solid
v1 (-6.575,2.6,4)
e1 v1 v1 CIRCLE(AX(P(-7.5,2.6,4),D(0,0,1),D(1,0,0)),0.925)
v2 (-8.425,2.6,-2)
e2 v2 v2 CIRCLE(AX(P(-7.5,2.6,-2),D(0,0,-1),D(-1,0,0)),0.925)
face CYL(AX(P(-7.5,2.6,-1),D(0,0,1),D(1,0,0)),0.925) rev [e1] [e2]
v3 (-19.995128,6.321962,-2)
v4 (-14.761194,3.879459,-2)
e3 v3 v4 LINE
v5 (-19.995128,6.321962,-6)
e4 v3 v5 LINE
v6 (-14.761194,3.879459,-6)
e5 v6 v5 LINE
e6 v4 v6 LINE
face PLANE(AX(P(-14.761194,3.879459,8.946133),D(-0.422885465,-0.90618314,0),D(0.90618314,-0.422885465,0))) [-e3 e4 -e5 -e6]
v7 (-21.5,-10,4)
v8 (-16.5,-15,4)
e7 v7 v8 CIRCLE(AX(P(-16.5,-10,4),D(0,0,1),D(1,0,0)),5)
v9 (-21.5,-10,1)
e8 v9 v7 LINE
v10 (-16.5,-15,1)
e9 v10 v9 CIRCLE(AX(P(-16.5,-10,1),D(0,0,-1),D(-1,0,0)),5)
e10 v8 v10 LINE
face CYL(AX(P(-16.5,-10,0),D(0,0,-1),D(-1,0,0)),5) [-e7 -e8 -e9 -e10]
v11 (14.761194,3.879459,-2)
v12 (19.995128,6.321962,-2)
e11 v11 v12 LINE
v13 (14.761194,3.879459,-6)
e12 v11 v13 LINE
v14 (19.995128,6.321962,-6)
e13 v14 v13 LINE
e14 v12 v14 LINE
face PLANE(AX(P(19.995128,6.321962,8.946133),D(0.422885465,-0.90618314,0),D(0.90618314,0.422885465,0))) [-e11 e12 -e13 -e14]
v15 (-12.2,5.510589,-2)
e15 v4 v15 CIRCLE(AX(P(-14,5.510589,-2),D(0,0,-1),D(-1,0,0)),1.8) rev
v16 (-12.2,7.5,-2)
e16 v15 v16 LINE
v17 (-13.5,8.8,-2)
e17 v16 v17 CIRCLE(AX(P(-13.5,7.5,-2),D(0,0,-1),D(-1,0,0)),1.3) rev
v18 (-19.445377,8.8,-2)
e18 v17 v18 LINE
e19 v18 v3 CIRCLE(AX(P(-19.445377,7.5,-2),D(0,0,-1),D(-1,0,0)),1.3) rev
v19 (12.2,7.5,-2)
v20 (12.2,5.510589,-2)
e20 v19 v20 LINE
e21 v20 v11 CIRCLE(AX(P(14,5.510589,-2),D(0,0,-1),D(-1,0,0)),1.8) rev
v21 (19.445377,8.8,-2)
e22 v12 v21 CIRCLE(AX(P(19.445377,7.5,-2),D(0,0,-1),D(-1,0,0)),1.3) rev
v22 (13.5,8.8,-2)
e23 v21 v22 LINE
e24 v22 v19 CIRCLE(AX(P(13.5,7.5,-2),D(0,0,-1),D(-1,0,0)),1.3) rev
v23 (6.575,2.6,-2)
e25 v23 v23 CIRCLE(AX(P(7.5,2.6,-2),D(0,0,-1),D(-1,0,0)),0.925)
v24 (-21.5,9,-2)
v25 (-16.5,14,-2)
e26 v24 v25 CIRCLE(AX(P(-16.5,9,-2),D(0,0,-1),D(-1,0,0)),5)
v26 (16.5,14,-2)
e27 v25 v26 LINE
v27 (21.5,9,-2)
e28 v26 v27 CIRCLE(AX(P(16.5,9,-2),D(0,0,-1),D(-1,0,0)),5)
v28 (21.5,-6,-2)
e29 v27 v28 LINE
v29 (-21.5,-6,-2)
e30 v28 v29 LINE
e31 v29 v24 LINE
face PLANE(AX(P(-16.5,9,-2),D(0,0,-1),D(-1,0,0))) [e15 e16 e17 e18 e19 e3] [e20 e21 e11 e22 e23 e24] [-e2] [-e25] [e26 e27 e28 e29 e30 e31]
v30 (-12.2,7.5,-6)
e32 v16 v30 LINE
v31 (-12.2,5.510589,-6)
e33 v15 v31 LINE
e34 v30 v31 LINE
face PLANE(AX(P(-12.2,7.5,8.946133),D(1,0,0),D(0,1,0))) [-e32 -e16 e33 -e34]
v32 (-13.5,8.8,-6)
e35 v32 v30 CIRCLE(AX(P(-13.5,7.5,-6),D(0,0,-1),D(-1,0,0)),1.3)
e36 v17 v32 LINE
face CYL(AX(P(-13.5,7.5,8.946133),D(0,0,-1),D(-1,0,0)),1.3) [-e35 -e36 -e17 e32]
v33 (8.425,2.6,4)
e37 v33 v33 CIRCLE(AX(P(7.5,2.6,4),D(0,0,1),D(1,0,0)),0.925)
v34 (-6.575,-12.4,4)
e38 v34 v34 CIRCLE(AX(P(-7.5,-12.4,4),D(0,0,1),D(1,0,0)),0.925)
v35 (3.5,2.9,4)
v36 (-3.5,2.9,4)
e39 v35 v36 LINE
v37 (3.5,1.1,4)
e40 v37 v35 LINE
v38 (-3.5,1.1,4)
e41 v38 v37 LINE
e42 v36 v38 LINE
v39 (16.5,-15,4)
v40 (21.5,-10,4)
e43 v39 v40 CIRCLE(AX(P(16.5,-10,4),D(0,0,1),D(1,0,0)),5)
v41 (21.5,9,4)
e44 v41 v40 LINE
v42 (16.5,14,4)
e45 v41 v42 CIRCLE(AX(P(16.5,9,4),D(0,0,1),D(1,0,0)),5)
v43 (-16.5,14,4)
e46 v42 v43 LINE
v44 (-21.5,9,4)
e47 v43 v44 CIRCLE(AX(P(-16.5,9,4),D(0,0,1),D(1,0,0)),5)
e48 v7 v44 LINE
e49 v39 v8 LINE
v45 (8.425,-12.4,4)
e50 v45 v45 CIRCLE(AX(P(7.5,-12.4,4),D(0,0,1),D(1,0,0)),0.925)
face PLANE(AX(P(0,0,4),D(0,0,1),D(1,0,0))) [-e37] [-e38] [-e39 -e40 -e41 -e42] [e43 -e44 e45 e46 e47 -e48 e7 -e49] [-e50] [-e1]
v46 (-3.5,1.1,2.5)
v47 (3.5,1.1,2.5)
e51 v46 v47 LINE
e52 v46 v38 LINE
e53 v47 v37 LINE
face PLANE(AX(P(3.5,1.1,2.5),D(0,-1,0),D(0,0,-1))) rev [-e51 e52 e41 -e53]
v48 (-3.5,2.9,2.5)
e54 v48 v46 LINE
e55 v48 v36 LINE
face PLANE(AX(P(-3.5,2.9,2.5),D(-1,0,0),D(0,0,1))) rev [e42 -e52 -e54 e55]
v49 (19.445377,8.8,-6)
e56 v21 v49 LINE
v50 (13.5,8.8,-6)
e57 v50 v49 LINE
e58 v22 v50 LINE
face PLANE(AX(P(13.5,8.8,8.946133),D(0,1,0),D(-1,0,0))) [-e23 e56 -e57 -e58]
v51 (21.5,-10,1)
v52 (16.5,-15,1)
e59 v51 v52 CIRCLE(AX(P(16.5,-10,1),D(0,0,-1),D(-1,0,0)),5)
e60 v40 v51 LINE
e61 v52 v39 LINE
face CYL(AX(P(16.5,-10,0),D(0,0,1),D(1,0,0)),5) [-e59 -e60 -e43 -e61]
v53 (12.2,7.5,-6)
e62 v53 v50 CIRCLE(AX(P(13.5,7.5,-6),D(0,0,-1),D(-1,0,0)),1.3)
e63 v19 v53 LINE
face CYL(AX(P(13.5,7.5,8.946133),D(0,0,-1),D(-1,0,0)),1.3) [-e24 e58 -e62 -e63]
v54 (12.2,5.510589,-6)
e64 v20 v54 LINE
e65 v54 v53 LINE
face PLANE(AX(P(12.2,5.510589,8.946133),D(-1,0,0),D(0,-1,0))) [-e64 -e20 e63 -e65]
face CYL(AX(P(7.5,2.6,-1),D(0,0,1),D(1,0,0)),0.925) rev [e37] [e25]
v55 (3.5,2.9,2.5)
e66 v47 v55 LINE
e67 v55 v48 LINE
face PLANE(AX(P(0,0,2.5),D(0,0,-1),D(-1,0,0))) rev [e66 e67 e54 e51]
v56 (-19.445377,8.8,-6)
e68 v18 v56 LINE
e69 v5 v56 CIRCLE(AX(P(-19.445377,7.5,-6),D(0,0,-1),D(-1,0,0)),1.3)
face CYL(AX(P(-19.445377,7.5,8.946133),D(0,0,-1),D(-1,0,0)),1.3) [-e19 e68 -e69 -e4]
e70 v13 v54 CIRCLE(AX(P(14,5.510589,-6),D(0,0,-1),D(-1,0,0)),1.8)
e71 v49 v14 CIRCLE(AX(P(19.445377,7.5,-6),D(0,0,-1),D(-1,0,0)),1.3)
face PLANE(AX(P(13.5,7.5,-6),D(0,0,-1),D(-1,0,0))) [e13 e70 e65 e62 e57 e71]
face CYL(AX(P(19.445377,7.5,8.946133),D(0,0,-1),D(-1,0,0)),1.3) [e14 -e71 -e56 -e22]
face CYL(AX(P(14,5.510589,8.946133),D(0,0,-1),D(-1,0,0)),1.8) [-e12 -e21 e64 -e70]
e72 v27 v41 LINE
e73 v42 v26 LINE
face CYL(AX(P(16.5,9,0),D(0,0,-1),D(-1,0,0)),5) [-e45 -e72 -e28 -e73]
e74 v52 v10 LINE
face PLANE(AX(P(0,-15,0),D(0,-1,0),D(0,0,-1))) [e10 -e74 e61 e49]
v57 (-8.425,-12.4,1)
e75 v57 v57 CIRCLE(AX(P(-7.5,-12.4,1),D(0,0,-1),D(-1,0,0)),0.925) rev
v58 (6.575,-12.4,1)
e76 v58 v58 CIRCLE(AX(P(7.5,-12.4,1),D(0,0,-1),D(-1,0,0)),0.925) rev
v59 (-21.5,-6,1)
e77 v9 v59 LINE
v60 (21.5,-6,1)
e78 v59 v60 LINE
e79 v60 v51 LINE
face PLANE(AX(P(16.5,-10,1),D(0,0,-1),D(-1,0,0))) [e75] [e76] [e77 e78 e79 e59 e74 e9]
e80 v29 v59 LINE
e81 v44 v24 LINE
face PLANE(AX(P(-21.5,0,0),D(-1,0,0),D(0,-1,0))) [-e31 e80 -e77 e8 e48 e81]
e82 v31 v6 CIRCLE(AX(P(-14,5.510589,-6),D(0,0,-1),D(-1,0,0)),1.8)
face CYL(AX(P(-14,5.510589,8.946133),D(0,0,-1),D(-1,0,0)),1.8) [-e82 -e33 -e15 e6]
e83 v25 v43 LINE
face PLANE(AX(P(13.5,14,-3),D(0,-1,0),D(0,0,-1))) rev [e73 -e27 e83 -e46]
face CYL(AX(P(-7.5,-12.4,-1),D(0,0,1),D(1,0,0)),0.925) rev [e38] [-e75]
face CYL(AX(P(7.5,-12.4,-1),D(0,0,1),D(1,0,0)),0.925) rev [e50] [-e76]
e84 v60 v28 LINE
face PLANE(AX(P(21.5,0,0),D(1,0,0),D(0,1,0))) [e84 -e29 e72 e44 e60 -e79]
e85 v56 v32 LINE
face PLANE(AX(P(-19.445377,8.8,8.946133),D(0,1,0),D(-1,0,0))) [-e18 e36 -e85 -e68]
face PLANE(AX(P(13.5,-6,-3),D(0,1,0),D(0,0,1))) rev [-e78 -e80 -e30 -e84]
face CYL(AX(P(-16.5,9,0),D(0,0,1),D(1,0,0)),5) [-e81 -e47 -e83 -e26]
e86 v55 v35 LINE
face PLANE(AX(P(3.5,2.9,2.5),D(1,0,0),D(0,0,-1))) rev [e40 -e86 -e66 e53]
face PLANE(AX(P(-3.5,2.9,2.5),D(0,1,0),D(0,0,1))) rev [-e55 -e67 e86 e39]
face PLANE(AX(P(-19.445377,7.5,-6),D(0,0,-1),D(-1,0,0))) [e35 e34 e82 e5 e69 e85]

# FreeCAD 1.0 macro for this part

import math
import FreeCAD as App
import Part
import Sketcher
from FreeCAD import Vector


def edges_at(feature, points):
    """Names of the edges that pass closest to the given points."""
    edges = feature.Shape.Edges
    near = lambda p: min(range(len(edges)), key=lambda i: edges[i].distToShape(Part.Vertex(*p))[0])
    return sorted({f"Edge{near(p) + 1}" for p in points})


def add_polygon(sketch, points):
    """Adds a closed chain of lines whose ends are joined by coincident constraints."""
    first, n = sketch.GeometryCount, len(points)
    for a, b in zip(points, points[1:] + points[:1]):
        sketch.addGeometry(Part.LineSegment(App.Vector(*a, 0), App.Vector(*b, 0)), False)
    for i in range(n):
        sketch.addConstraint(Sketcher.Constraint("Coincident", first + i, 2, first + (i + 1) % n, 1))

doc = App.newDocument("Part")
body = doc.addObject("PartDesign::Body", "Body")

# Sketch on XY plane
sketch1 = body.newObject("Sketcher::SketchObject", "Sketch")
sketch1.AttachmentSupport = (doc.getObject("XY_Plane"), [""])
sketch1.MapMode = "FlatFace"
add_polygon(sketch1, [(-14, 10), (-14, -10), (14, -10), (14, 10)])  # lines 0-3
sketch1.addConstraint([
    Sketcher.Constraint("Vertical", 0),
    Sketcher.Constraint("Horizontal", 1),
    Sketcher.Constraint("Vertical", 2),
    Sketcher.Constraint("Horizontal", 3),
    Sketcher.Constraint("Symmetric", 0, 2, 2, 2, -1, 1),
    Sketcher.Constraint("DistanceX", 1, 1, 1, 2, 27.0),
    Sketcher.Constraint("DistanceY", 0, 2, 0, 1, 20.0),
])
pad1 = body.newObject("PartDesign::Pad", "Pad")
pad1.Profile = sketch1
pad1.Length = 4

# Sketch on XY plane
sketch2 = body.newObject("Sketcher::SketchObject", "Sketch001")
sketch2.AttachmentSupport = (doc.getObject("XY_Plane"), [""])
sketch2.MapMode = "FlatFace"
sketch2.AttachmentOffset = App.Placement(Vector(0, 0, 4), App.Rotation())
add_polygon(sketch2, [(-3.4, 7.8), (-3.4, 6.2), (3.4, 6.2), (3.4, 7.8)])  # lines 0-3
sketch2.addConstraint([
    Sketcher.Constraint("Vertical", 0),
    Sketcher.Constraint("Horizontal", 1),
    Sketcher.Constraint("Vertical", 2),
    Sketcher.Constraint("Horizontal", 3),
    Sketcher.Constraint("DistanceX", 1, 1, 1, 2, 6.8),
    Sketcher.Constraint("DistanceY", 0, 2, 0, 1, 1.6),
    Sketcher.Constraint("DistanceX", 0, 2, -1, 1, 3.4),
    Sketcher.Constraint("DistanceY", -1, 1, 0, 2, 6.2),
])
pocket1 = body.newObject("PartDesign::Pocket", "Pocket")
pocket1.Profile = sketch2
pocket1.Length = 1.5

# Sketch on XY plane
sketch3 = body.newObject("Sketcher::SketchObject", "Sketch002")
sketch3.AttachmentSupport = (doc.getObject("XY_Plane"), [""])
sketch3.MapMode = "FlatFace"
add_polygon(sketch3, [(14, 14), (14, -6), (-14, -6), (-14, 14)])  # lines 0-3
sketch3.addConstraint([
    Sketcher.Constraint("Vertical", 0),
    Sketcher.Constraint("Horizontal", 1),
    Sketcher.Constraint("Vertical", 2),
    Sketcher.Constraint("Horizontal", 3),
    Sketcher.Constraint("DistanceX", 1, 2, 1, 1, 27.0),
    Sketcher.Constraint("DistanceY", 0, 2, 0, 1, 20.0),
    Sketcher.Constraint("DistanceY", 0, 2, -1, 1, 6.0),
    Sketcher.Constraint("DistanceX", -1, 1, 0, 2, 13.5),
])
pad2 = body.newObject("PartDesign::Pad", "Pad001")
pad2.Profile = sketch3
pad2.Length = 3
pad2.Reversed = True

# Sketch on XZ plane
sketch4 = body.newObject("Sketcher::SketchObject", "Sketch003")
sketch4.AttachmentSupport = (doc.getObject("XZ_Plane"), [""])
sketch4.MapMode = "FlatFace"
sketch4.AttachmentOffset = App.Placement(Vector(0, 0, -10), App.Rotation())
add_polygon(sketch4, [(-13.5, 0), (-13.5, 4), (13.5, 4), (13.5, 0)])  # lines 0-3
sketch4.addConstraint([
    Sketcher.Constraint("Vertical", 0),
    Sketcher.Constraint("Horizontal", 1),
    Sketcher.Constraint("Vertical", 2),
    Sketcher.Constraint("Horizontal", 3),
    Sketcher.Constraint("Symmetric", 2, 2, 3, 2, -1, 1),
    Sketcher.Constraint("DistanceX", 1, 1, 1, 2, 27.0),
    Sketcher.Constraint("DistanceY", 0, 1, 0, 2, 4.0),
])
pad3 = body.newObject("PartDesign::Pad", "Pad002")
pad3.Profile = sketch4
pad3.Length = 4
pad3.Reversed = True

# Sketch on XY plane
sketch5 = body.newObject("Sketcher::SketchObject", "Sketch004")
sketch5.AttachmentSupport = (doc.getObject("XY_Plane"), [""])
sketch5.MapMode = "FlatFace"
sketch5.AttachmentOffset = App.Placement(Vector(0, 0, -3), App.Rotation())
add_polygon(sketch5, [(14, 14), (14, -6), (-14, -6), (-14, 14)])  # lines 0-3
sketch5.addConstraint([
    Sketcher.Constraint("Vertical", 0),
    Sketcher.Constraint("Horizontal", 1),
    Sketcher.Constraint("Vertical", 2),
    Sketcher.Constraint("Horizontal", 3),
    Sketcher.Constraint("DistanceX", 1, 2, 1, 1, 27.0),
    Sketcher.Constraint("DistanceY", 0, 2, 0, 1, 20.0),
    Sketcher.Constraint("DistanceY", 0, 2, -1, 1, 6.0),
    Sketcher.Constraint("DistanceX", -1, 1, 0, 2, 13.5),
])
pocket2 = body.newObject("PartDesign::Pocket", "Pocket001")
pocket2.Profile = sketch5
pocket2.Length = 2
pocket2.Reversed = True

# Sketch on YZ plane
sketch6 = body.newObject("Sketcher::SketchObject", "Sketch005")
sketch6.AttachmentSupport = (doc.getObject("YZ_Plane"), [""])
sketch6.MapMode = "FlatFace"
sketch6.AttachmentOffset = App.Placement(Vector(0, 0, -13.5), App.Rotation())
add_polygon(sketch6, [(14, -1), (-6, -1), (-6, 0), (-10, 0), (-10, 4), (14, 4)])  # lines 0-5
sketch6.addConstraint([
    Sketcher.Constraint("Horizontal", 0),
    Sketcher.Constraint("Vertical", 1),
    Sketcher.Constraint("Horizontal", 2),
    Sketcher.Constraint("Vertical", 3),
    Sketcher.Constraint("Horizontal", 4),
    Sketcher.Constraint("Vertical", 5),
    Sketcher.Constraint("PointOnObject", 1, 2, -1),
    Sketcher.Constraint("Equal", 2, 3),
    Sketcher.Constraint("DistanceX", 0, 2, 0, 1, 20.0),
    Sketcher.Constraint("DistanceX", 2, 2, 2, 1, 4.0),
    Sketcher.Constraint("DistanceY", 1, 1, 1, 2, 1.0),
    Sketcher.Constraint("DistanceX", 0, 2, -1, 1, 6.0),
])
pad4 = body.newObject("PartDesign::Pad", "Pad003")
pad4.Profile = sketch6
pad4.Length = 8
pad4.Reversed = True

# Sketch on YZ plane
sketch7 = body.newObject("Sketcher::SketchObject", "Sketch006")
sketch7.AttachmentSupport = (doc.getObject("YZ_Plane"), [""])
sketch7.MapMode = "FlatFace"
sketch7.AttachmentOffset = App.Placement(Vector(0, 0, 13.5), App.Rotation())
add_polygon(sketch7, [(-6, -1), (14, -1), (14, 4), (-10, 4), (-10, 0), (-6, 0)])  # lines 0-5
sketch7.addConstraint([
    Sketcher.Constraint("Horizontal", 0),
    Sketcher.Constraint("Vertical", 1),
    Sketcher.Constraint("Horizontal", 2),
    Sketcher.Constraint("Vertical", 3),
    Sketcher.Constraint("Horizontal", 4),
    Sketcher.Constraint("Vertical", 5),
    Sketcher.Constraint("PointOnObject", 3, 2, -1),
    Sketcher.Constraint("Equal", 4, 3),
    Sketcher.Constraint("DistanceX", 0, 1, 0, 2, 20.0),
    Sketcher.Constraint("DistanceX", 2, 2, 2, 1, 24.0),
    Sketcher.Constraint("DistanceY", 1, 1, 1, 2, 5.0),
    Sketcher.Constraint("DistanceX", -1, 1, 0, 2, 14.0),
])
pad5 = body.newObject("PartDesign::Pad", "Pad004")
pad5.Profile = sketch7
pad5.Length = 8

# Sketch on XY plane
sketch8 = body.newObject("Sketcher::SketchObject", "Sketch007")
sketch8.AttachmentSupport = (doc.getObject("XY_Plane"), [""])
sketch8.MapMode = "FlatFace"
sketch8.AttachmentOffset = App.Placement(Vector(0, 0, -1), App.Rotation())
add_polygon(sketch8, [(22, 14), (22, -2), (-22, -2), (-22, 14)])  # lines 0-3
sketch8.addConstraint([
    Sketcher.Constraint("Vertical", 0),
    Sketcher.Constraint("Horizontal", 1),
    Sketcher.Constraint("Vertical", 2),
    Sketcher.Constraint("Horizontal", 3),
    Sketcher.Constraint("DistanceX", 1, 2, 1, 1, 43.0),
    Sketcher.Constraint("DistanceY", 0, 2, 0, 1, 16.0),
    Sketcher.Constraint("DistanceY", 0, 2, -1, 1, 2.0),
    Sketcher.Constraint("DistanceX", -1, 1, 0, 2, 21.5),
])
pad6 = body.newObject("PartDesign::Pad", "Pad005")
pad6.Profile = sketch8
pad6.Length = 20
pad6.Reversed = True

# Sketch on XY plane
sketch9 = body.newObject("Sketcher::SketchObject", "Sketch008")
sketch9.AttachmentSupport = (doc.getObject("XY_Plane"), [""])
sketch9.MapMode = "FlatFace"
sketch9.AttachmentOffset = App.Placement(Vector(0, 0, -21), App.Rotation())
add_polygon(sketch9, [(21.5, 14), (21.5, -2), (-21.5, -2), (-21.5, 14)])  # lines 0-3
sketch9.addGeometry(Part.LineSegment(Vector(14.6, 4.2, 0), Vector(19.9, 6.6, 0)), False)  # 4
sketch9.addGeometry(Part.ArcOfCircle(Part.Circle(Vector(19.4, 7.5, 0), Vector(0, 0, 1), 1), math.radians(-65), math.radians(90)), False)  # 5
sketch9.addGeometry(Part.LineSegment(Vector(19.4, 8.5, 0), Vector(13.5, 8.5, 0)), False)  # 6
sketch9.addGeometry(Part.ArcOfCircle(Part.Circle(Vector(13.5, 7.5, 0), Vector(0, 0, 1), 1), math.radians(90), math.radians(180)), False)  # 7
sketch9.addGeometry(Part.LineSegment(Vector(12.5, 7.5, 0), Vector(12.5, 5.5, 0)), False)  # 8
sketch9.addGeometry(Part.ArcOfCircle(Part.Circle(Vector(14, 5.5, 0), Vector(0, 0, 1), 1.5), math.radians(180), math.radians(295)), False)  # 9
sketch9.addGeometry(Part.ArcOfCircle(Part.Circle(Vector(-19.4, 7.5, 0), Vector(0, 0, 1), 1), math.radians(90), math.radians(245)), False)  # 10
sketch9.addGeometry(Part.LineSegment(Vector(-19.9, 6.6, 0), Vector(-14.6, 4.2, 0)), False)  # 11
sketch9.addGeometry(Part.ArcOfCircle(Part.Circle(Vector(-14, 5.5, 0), Vector(0, 0, 1), 1.5), math.radians(-115), math.radians(0)), False)  # 12
sketch9.addGeometry(Part.LineSegment(Vector(-12.5, 5.5, 0), Vector(-12.5, 7.5, 0)), False)  # 13
sketch9.addGeometry(Part.ArcOfCircle(Part.Circle(Vector(-13.5, 7.5, 0), Vector(0, 0, 1), 1), math.radians(0), math.radians(90)), False)  # 14
sketch9.addGeometry(Part.LineSegment(Vector(-13.5, 8.5, 0), Vector(-19.4, 8.5, 0)), False)  # 15
sketch9.addConstraint([
    Sketcher.Constraint("Tangent", 4, 2, 5, 1),
    Sketcher.Constraint("Tangent", 5, 2, 6, 1),
    Sketcher.Constraint("Tangent", 6, 2, 7, 1),
    Sketcher.Constraint("Tangent", 7, 2, 8, 1),
    Sketcher.Constraint("Tangent", 8, 2, 9, 1),
    Sketcher.Constraint("Tangent", 9, 2, 4, 1),
    Sketcher.Constraint("Tangent", 10, 2, 11, 1),
    Sketcher.Constraint("Tangent", 11, 2, 12, 1),
    Sketcher.Constraint("Tangent", 12, 2, 13, 1),
    Sketcher.Constraint("Tangent", 13, 2, 14, 1),
    Sketcher.Constraint("Tangent", 14, 2, 15, 1),
    Sketcher.Constraint("Tangent", 15, 2, 10, 1),
    Sketcher.Constraint("Vertical", 0),
    Sketcher.Constraint("Horizontal", 1),
    Sketcher.Constraint("Vertical", 2),
    Sketcher.Constraint("Horizontal", 3),
    Sketcher.Constraint("Horizontal", 6),
    Sketcher.Constraint("Vertical", 8),
    Sketcher.Constraint("Vertical", 13),
    Sketcher.Constraint("Horizontal", 15),
    Sketcher.Constraint("Equal", 5, 7),
    Sketcher.Constraint("Equal", 7, 10),
    Sketcher.Constraint("Equal", 9, 12),
    Sketcher.Constraint("Equal", 10, 14),
    Sketcher.Constraint("Symmetric", 5, 3, 10, 3, -2),
    Sketcher.Constraint("Symmetric", 9, 3, 12, 3, -2),
    Sketcher.Constraint("Radius", 5, 1.0),
    Sketcher.Constraint("Radius", 9, 1.5),
    Sketcher.Constraint("DistanceX", 1, 2, 1, 1, 43.0),
    Sketcher.Constraint("DistanceY", 0, 2, 0, 1, 16.0),
    Sketcher.Constraint("DistanceX", -1, 1, 9, 3, 14.0),
    Sketcher.Constraint("DistanceY", 0, 2, -1, 1, 2.0),
    Sketcher.Constraint("DistanceX", 7, 3, 0, 2, 8.0),
    Sketcher.Constraint("DistanceY", -1, 1, 5, 3, 7.5),
    Sketcher.Constraint("Distance", 4, 5.775801),
    Sketcher.Constraint("DistanceY", 8, 2, 8, 1, 1.989411),
])
pocket3 = body.newObject("PartDesign::Pocket", "Pocket002")
pocket3.Profile = sketch9
pocket3.Length = 20
pocket3.Reversed = True

# Sketch on XY plane
sketch10 = body.newObject("Sketcher::SketchObject", "Sketch009")
sketch10.AttachmentSupport = (doc.getObject("XY_Plane"), [""])
sketch10.MapMode = "FlatFace"
sketch10.AttachmentOffset = App.Placement(Vector(0, 0, -21), App.Rotation())
sketch10.addGeometry([
    Part.LineSegment(Vector(-14.6, 4.2, 0), Vector(-19.9, 6.6, 0)),  # 0
    Part.ArcOfCircle(Part.Circle(Vector(-19.4, 7.5, 0), Vector(0, 0, 1), 1), math.radians(90), math.radians(245)),  # 1
    Part.LineSegment(Vector(-19.4, 8.5, 0), Vector(-13.5, 8.5, 0)),  # 2
    Part.ArcOfCircle(Part.Circle(Vector(-13.5, 7.5, 0), Vector(0, 0, 1), 1), math.radians(0), math.radians(90)),  # 3
    Part.LineSegment(Vector(-12.5, 7.5, 0), Vector(-12.5, 5.5, 0)),  # 4
    Part.ArcOfCircle(Part.Circle(Vector(-14, 5.5, 0), Vector(0, 0, 1), 1.5), math.radians(-115), math.radians(0)),  # 5
    Part.LineSegment(Vector(13.5, 8.5, 0), Vector(19.4, 8.5, 0)),  # 6
    Part.ArcOfCircle(Part.Circle(Vector(19.4, 7.5, 0), Vector(0, 0, 1), 1), math.radians(-65), math.radians(90)),  # 7
    Part.LineSegment(Vector(19.9, 6.6, 0), Vector(14.6, 4.2, 0)),  # 8
    Part.ArcOfCircle(Part.Circle(Vector(14, 5.5, 0), Vector(0, 0, 1), 1.5), math.radians(180), math.radians(295)),  # 9
    Part.LineSegment(Vector(12.5, 5.5, 0), Vector(12.5, 7.5, 0)),  # 10
    Part.ArcOfCircle(Part.Circle(Vector(13.5, 7.5, 0), Vector(0, 0, 1), 1), math.radians(90), math.radians(180)),  # 11
], False)
sketch10.addConstraint([
    Sketcher.Constraint("Tangent", 0, 2, 1, 2),
    Sketcher.Constraint("Tangent", 1, 1, 2, 1),
    Sketcher.Constraint("Tangent", 2, 2, 3, 2),
    Sketcher.Constraint("Tangent", 3, 1, 4, 1),
    Sketcher.Constraint("Tangent", 4, 2, 5, 2),
    Sketcher.Constraint("Tangent", 5, 1, 0, 1),
    Sketcher.Constraint("Tangent", 6, 2, 7, 2),
    Sketcher.Constraint("Tangent", 7, 1, 8, 1),
    Sketcher.Constraint("Tangent", 8, 2, 9, 2),
    Sketcher.Constraint("Tangent", 9, 1, 10, 1),
    Sketcher.Constraint("Tangent", 10, 2, 11, 2),
    Sketcher.Constraint("Tangent", 11, 1, 6, 1),
    Sketcher.Constraint("Horizontal", 2),
    Sketcher.Constraint("Vertical", 4),
    Sketcher.Constraint("Horizontal", 6),
    Sketcher.Constraint("Vertical", 10),
    Sketcher.Constraint("Equal", 1, 3),
    Sketcher.Constraint("Equal", 3, 7),
    Sketcher.Constraint("Equal", 5, 9),
    Sketcher.Constraint("Equal", 7, 11),
    Sketcher.Constraint("Symmetric", 1, 3, 7, 3, -2),
    Sketcher.Constraint("Symmetric", 5, 3, 9, 3, -2),
    Sketcher.Constraint("Radius", 1, 1.0),
    Sketcher.Constraint("Radius", 5, 1.5),
    Sketcher.Constraint("DistanceX", 5, 3, -1, 1, 14.0),
    Sketcher.Constraint("DistanceY", -1, 1, 1, 3, 7.5),
    Sketcher.Constraint("Distance", 0, 5.775801),
    Sketcher.Constraint("DistanceY", 4, 2, 4, 1, 1.989411),
])
pocket4 = body.newObject("PartDesign::Pocket", "Pocket003")
pocket4.Profile = sketch10
pocket4.Length = 16
pocket4.Reversed = True

# Sketch on XY plane
sketch11 = body.newObject("Sketcher::SketchObject", "Sketch010")
sketch11.AttachmentSupport = (doc.getObject("XY_Plane"), [""])
sketch11.MapMode = "FlatFace"
sketch11.AttachmentOffset = App.Placement(Vector(0, 0, 4), App.Rotation())
add_polygon(sketch11, [(-3.5, 7.9), (-3.5, 6.1), (3.5, 6.1), (3.5, 7.9)])  # lines 0-3
sketch11.addConstraint([
    Sketcher.Constraint("Vertical", 0),
    Sketcher.Constraint("Horizontal", 1),
    Sketcher.Constraint("Vertical", 2),
    Sketcher.Constraint("Horizontal", 3),
    Sketcher.Constraint("DistanceX", 1, 1, 1, 2, 7.0),
    Sketcher.Constraint("DistanceY", 0, 2, 0, 1, 1.8),
    Sketcher.Constraint("DistanceX", 0, 2, -1, 1, 3.5),
    Sketcher.Constraint("DistanceY", -1, 1, 0, 2, 6.1),
])
pocket5 = body.newObject("PartDesign::Pocket", "Pocket004")
pocket5.Profile = sketch11
pocket5.Length = 1.5

# Sketch on XZ plane
sketch12 = body.newObject("Sketcher::SketchObject", "Sketch011")
sketch12.AttachmentSupport = (doc.getObject("XZ_Plane"), [""])
sketch12.MapMode = "FlatFace"
sketch12.AttachmentOffset = App.Placement(Vector(0, 0, 10), App.Rotation())
add_polygon(sketch12, [(-21.5, 4), (-21.5, 0), (21.5, 0), (21.5, 4)])  # lines 0-3
sketch12.addConstraint([
    Sketcher.Constraint("Vertical", 0),
    Sketcher.Constraint("Horizontal", 1),
    Sketcher.Constraint("Vertical", 2),
    Sketcher.Constraint("Horizontal", 3),
    Sketcher.Constraint("Symmetric", 0, 2, 1, 2, -1, 1),
    Sketcher.Constraint("DistanceX", 1, 1, 1, 2, 43.0),
    Sketcher.Constraint("DistanceY", 0, 2, 0, 1, 4.0),
])
pad7 = body.newObject("PartDesign::Pad", "Pad006")
pad7.Profile = sketch12
pad7.Length = 5

# Sketch on XY plane
sketch13 = body.newObject("Sketcher::SketchObject", "Sketch012")
sketch13.AttachmentSupport = (doc.getObject("XY_Plane"), [""])
sketch13.MapMode = "FlatFace"
sketch13.AttachmentOffset = App.Placement(Vector(0, 0, 4), App.Rotation())
sketch13.addGeometry([
    Part.Circle(Vector(-7.5, 2.6, 0), Vector(0, 0, 1), 0.9),
    Part.Circle(Vector(7.5, 2.6, 0), Vector(0, 0, 1), 0.9),
    Part.Circle(Vector(7.5, -12.4, 0), Vector(0, 0, 1), 0.9),
    Part.Circle(Vector(-7.5, -12.4, 0), Vector(0, 0, 1), 0.9),
], False)
sketch13.addConstraint([
    Sketcher.Constraint("Equal", 0, 1),
    Sketcher.Constraint("Equal", 1, 2),
    Sketcher.Constraint("Equal", 2, 3),
    Sketcher.Constraint("Symmetric", 0, 3, 1, 3, -2),
    Sketcher.Constraint("Symmetric", 2, 3, 3, 3, -2),
    Sketcher.Constraint("Vertical", 1, 3, 2, 3),
    Sketcher.Constraint("Diameter", 0, 1.85),
    Sketcher.Constraint("DistanceX", 0, 3, 1, 3, 15.0),
    Sketcher.Constraint("DistanceY", 2, 3, 1, 3, 15.0),
    Sketcher.Constraint("DistanceY", -1, 1, 0, 3, 2.6),
])
pocket6 = body.newObject("PartDesign::Pocket", "Pocket005")
pocket6.Profile = sketch13
pocket6.Length = 5

# Sketch on XY plane
sketch14 = body.newObject("Sketcher::SketchObject", "Sketch013")
sketch14.AttachmentSupport = (doc.getObject("XY_Plane"), [""])
sketch14.MapMode = "FlatFace"
sketch14.AttachmentOffset = App.Placement(Vector(0, 0, 4), App.Rotation())
add_polygon(sketch14, [(-3.5, 2.9), (-3.5, 1.1), (3.5, 1.1), (3.5, 2.9)])  # lines 0-3
sketch14.addConstraint([
    Sketcher.Constraint("Vertical", 0),
    Sketcher.Constraint("Horizontal", 1),
    Sketcher.Constraint("Vertical", 2),
    Sketcher.Constraint("Horizontal", 3),
    Sketcher.Constraint("DistanceX", 1, 1, 1, 2, 7.0),
    Sketcher.Constraint("DistanceY", 0, 2, 0, 1, 1.8),
    Sketcher.Constraint("DistanceX", 0, 2, -1, 1, 3.5),
    Sketcher.Constraint("DistanceY", -1, 1, 0, 2, 1.1),
])
pocket7 = body.newObject("PartDesign::Pocket", "Pocket006")
pocket7.Profile = sketch14
pocket7.Length = 1.5

# Sketch on XY plane
sketch15 = body.newObject("Sketcher::SketchObject", "Sketch014")
sketch15.AttachmentSupport = (doc.getObject("XY_Plane"), [""])
sketch15.MapMode = "FlatFace"
sketch15.AttachmentOffset = App.Placement(Vector(0, 0, 4), App.Rotation())
add_polygon(sketch15, [(-3.5, 7.9), (-3.5, 6.1), (3.5, 6.1), (3.5, 7.9)])  # lines 0-3
sketch15.addConstraint([
    Sketcher.Constraint("Vertical", 0),
    Sketcher.Constraint("Horizontal", 1),
    Sketcher.Constraint("Vertical", 2),
    Sketcher.Constraint("Horizontal", 3),
    Sketcher.Constraint("DistanceX", 1, 1, 1, 2, 7.0),
    Sketcher.Constraint("DistanceY", 0, 2, 0, 1, 1.8),
    Sketcher.Constraint("DistanceX", 0, 2, -1, 1, 3.5),
    Sketcher.Constraint("DistanceY", -1, 1, 0, 2, 6.1),
])
pad8 = body.newObject("PartDesign::Pad", "Pad007")
pad8.Profile = sketch15
pad8.Length = 1.5
pad8.Reversed = True
doc.recompute()

fillet = body.newObject("PartDesign::Fillet", "Fillet")
fillet.Base = (pad8, edges_at(pad8, [
    (21.5, 14, 1.5),
    (-21.5, -15, 2),
    (21.5, -15, 2),
    (-21.5, 14, 1.5),
]))
fillet.Radius = 5

# Sketch on XY plane
sketch16 = body.newObject("Sketcher::SketchObject", "Sketch015")
sketch16.AttachmentSupport = (doc.getObject("XY_Plane"), [""])
sketch16.MapMode = "FlatFace"
sketch16.AttachmentOffset = App.Placement(Vector(0, 0, -5), App.Rotation())
sketch16.addGeometry([
    Part.LineSegment(Vector(13.5, 8.6, 0), Vector(19.4, 8.6, 0)),  # 0
    Part.ArcOfCircle(Part.Circle(Vector(19.4, 7.5, 0), Vector(0, 0, 1), 1.1), math.radians(-65), math.radians(90)),  # 1
    Part.LineSegment(Vector(19.9, 6.5, 0), Vector(14.7, 4.1, 0)),  # 2
    Part.ArcOfCircle(Part.Circle(Vector(14, 5.5, 0), Vector(0, 0, 1), 1.6), math.radians(-180), math.radians(-65)),  # 3
    Part.LineSegment(Vector(12.4, 5.5, 0), Vector(12.4, 7.5, 0)),  # 4
    Part.ArcOfCircle(Part.Circle(Vector(13.5, 7.5, 0), Vector(0, 0, 1), 1.1), math.radians(90), math.radians(180)),  # 5
    Part.LineSegment(Vector(19.4, 8.5, 0), Vector(13.5, 8.5, 0)),  # 6
    Part.ArcOfCircle(Part.Circle(Vector(13.5, 7.5, 0), Vector(0, 0, 1), 1), math.radians(90), math.radians(180)),  # 7
    Part.LineSegment(Vector(12.5, 7.5, 0), Vector(12.5, 5.5, 0)),  # 8
    Part.ArcOfCircle(Part.Circle(Vector(14, 5.5, 0), Vector(0, 0, 1), 1.5), math.radians(-180), math.radians(-65)),  # 9
    Part.LineSegment(Vector(14.6, 4.2, 0), Vector(19.9, 6.6, 0)),  # 10
    Part.ArcOfCircle(Part.Circle(Vector(19.4, 7.5, 0), Vector(0, 0, 1), 1), math.radians(-65), math.radians(90)),  # 11
    Part.LineSegment(Vector(-19.4, 8.6, 0), Vector(-13.5, 8.6, 0)),  # 12
    Part.ArcOfCircle(Part.Circle(Vector(-13.5, 7.5, 0), Vector(0, 0, 1), 1.1), math.radians(0), math.radians(90)),  # 13
    Part.LineSegment(Vector(-12.4, 7.5, 0), Vector(-12.4, 5.5, 0)),  # 14
    Part.ArcOfCircle(Part.Circle(Vector(-14, 5.5, 0), Vector(0, 0, 1), 1.6), math.radians(-115), math.radians(0)),  # 15
    Part.LineSegment(Vector(-14.7, 4.1, 0), Vector(-19.9, 6.5, 0)),  # 16
    Part.ArcOfCircle(Part.Circle(Vector(-19.4, 7.5, 0), Vector(0, 0, 1), 1.1), math.radians(90), math.radians(245)),  # 17
    Part.LineSegment(Vector(-19.9, 6.6, 0), Vector(-14.6, 4.2, 0)),  # 18
    Part.ArcOfCircle(Part.Circle(Vector(-14, 5.5, 0), Vector(0, 0, 1), 1.5), math.radians(-115), math.radians(0)),  # 19
    Part.LineSegment(Vector(-12.5, 5.5, 0), Vector(-12.5, 7.5, 0)),  # 20
    Part.ArcOfCircle(Part.Circle(Vector(-13.5, 7.5, 0), Vector(0, 0, 1), 1), math.radians(0), math.radians(90)),  # 21
    Part.LineSegment(Vector(-13.5, 8.5, 0), Vector(-19.4, 8.5, 0)),  # 22
    Part.ArcOfCircle(Part.Circle(Vector(-19.4, 7.5, 0), Vector(0, 0, 1), 1), math.radians(90), math.radians(245)),  # 23
], False)
sketch16.addConstraint([
    Sketcher.Constraint("Tangent", 0, 2, 1, 2),
    Sketcher.Constraint("Tangent", 1, 1, 2, 1),
    Sketcher.Constraint("Tangent", 2, 2, 3, 2),
    Sketcher.Constraint("Tangent", 3, 1, 4, 1),
    Sketcher.Constraint("Tangent", 4, 2, 5, 2),
    Sketcher.Constraint("Tangent", 5, 1, 0, 1),
    Sketcher.Constraint("Tangent", 6, 2, 7, 1),
    Sketcher.Constraint("Tangent", 7, 2, 8, 1),
    Sketcher.Constraint("Tangent", 8, 2, 9, 1),
    Sketcher.Constraint("Tangent", 9, 2, 10, 1),
    Sketcher.Constraint("Tangent", 10, 2, 11, 1),
    Sketcher.Constraint("Tangent", 11, 2, 6, 1),
    Sketcher.Constraint("Tangent", 12, 2, 13, 2),
    Sketcher.Constraint("Tangent", 13, 1, 14, 1),
    Sketcher.Constraint("Tangent", 14, 2, 15, 2),
    Sketcher.Constraint("Tangent", 15, 1, 16, 1),
    Sketcher.Constraint("Tangent", 16, 2, 17, 2),
    Sketcher.Constraint("Tangent", 17, 1, 12, 1),
    Sketcher.Constraint("Tangent", 18, 2, 19, 1),
    Sketcher.Constraint("Tangent", 19, 2, 20, 1),
    Sketcher.Constraint("Tangent", 20, 2, 21, 1),
    Sketcher.Constraint("Tangent", 21, 2, 22, 1),
    Sketcher.Constraint("Tangent", 22, 2, 23, 1),
    Sketcher.Constraint("Tangent", 23, 2, 18, 1),
    Sketcher.Constraint("Horizontal", 0),
    Sketcher.Constraint("Vertical", 4),
    Sketcher.Constraint("Horizontal", 6),
    Sketcher.Constraint("Vertical", 8),
    Sketcher.Constraint("Horizontal", 12),
    Sketcher.Constraint("Vertical", 14),
    Sketcher.Constraint("Vertical", 20),
    Sketcher.Constraint("Horizontal", 22),
    Sketcher.Constraint("Coincident", 7, 3, 5, 3),
    Sketcher.Constraint("Coincident", 9, 3, 3, 3),
    Sketcher.Constraint("Coincident", 11, 3, 1, 3),
    Sketcher.Constraint("Coincident", 19, 3, 15, 3),
    Sketcher.Constraint("Coincident", 21, 3, 13, 3),
    Sketcher.Constraint("Coincident", 23, 3, 17, 3),
    Sketcher.Constraint("Equal", 1, 5),
    Sketcher.Constraint("Equal", 5, 13),
    Sketcher.Constraint("Equal", 3, 15),
    Sketcher.Constraint("Equal", 13, 17),
    Sketcher.Constraint("Equal", 9, 19),
    Sketcher.Constraint("Symmetric", 5, 3, 13, 3, -2),
    Sketcher.Constraint("Symmetric", 2, 2, 15, 1, -2),
    Sketcher.Constraint("Radius", 7, 1.0),
    Sketcher.Constraint("Radius", 1, 1.1),
    Sketcher.Constraint("Radius", 3, 1.6),
    Sketcher.Constraint("DistanceX", -1, 1, 3, 3, 14.0),
    Sketcher.Constraint("DistanceY", -1, 1, 1, 3, 7.5),
    Sketcher.Constraint("Distance", 2, 5.775801),
    Sketcher.Constraint("DistanceY", 4, 1, 4, 2, 1.989411),
])
pad9 = body.newObject("PartDesign::Pad", "Pad008")
pad9.Profile = sketch16
pad9.Length = 4

# Sketch on XY plane
sketch17 = body.newObject("Sketcher::SketchObject", "Sketch016")
sketch17.AttachmentSupport = (doc.getObject("XY_Plane"), [""])
sketch17.MapMode = "FlatFace"
sketch17.AttachmentOffset = App.Placement(Vector(0, 0, -5), App.Rotation())
sketch17.addGeometry([
    Part.LineSegment(Vector(13.5, 8.8, 0), Vector(19.4, 8.8, 0)),  # 0
    Part.ArcOfCircle(Part.Circle(Vector(19.4, 7.5, 0), Vector(0, 0, 1), 1.3), math.radians(-65), math.radians(90)),  # 1
    Part.LineSegment(Vector(20, 6.3, 0), Vector(14.8, 3.9, 0)),  # 2
    Part.ArcOfCircle(Part.Circle(Vector(14, 5.5, 0), Vector(0, 0, 1), 1.8), math.radians(-180), math.radians(-65)),  # 3
    Part.LineSegment(Vector(12.2, 5.5, 0), Vector(12.2, 7.5, 0)),  # 4
    Part.ArcOfCircle(Part.Circle(Vector(13.5, 7.5, 0), Vector(0, 0, 1), 1.3), math.radians(90), math.radians(180)),  # 5
    Part.LineSegment(Vector(19.4, 8.6, 0), Vector(13.5, 8.6, 0)),  # 6
    Part.ArcOfCircle(Part.Circle(Vector(13.5, 7.5, 0), Vector(0, 0, 1), 1.1), math.radians(90), math.radians(180)),  # 7
    Part.LineSegment(Vector(12.4, 7.5, 0), Vector(12.4, 5.5, 0)),  # 8
    Part.ArcOfCircle(Part.Circle(Vector(14, 5.5, 0), Vector(0, 0, 1), 1.6), math.radians(-180), math.radians(-65)),  # 9
    Part.LineSegment(Vector(14.7, 4.1, 0), Vector(19.9, 6.5, 0)),  # 10
    Part.ArcOfCircle(Part.Circle(Vector(19.4, 7.5, 0), Vector(0, 0, 1), 1.1), math.radians(-65), math.radians(90)),  # 11
    Part.LineSegment(Vector(-19.4, 8.8, 0), Vector(-13.5, 8.8, 0)),  # 12
    Part.ArcOfCircle(Part.Circle(Vector(-13.5, 7.5, 0), Vector(0, 0, 1), 1.3), math.radians(0), math.radians(90)),  # 13
    Part.LineSegment(Vector(-12.2, 7.5, 0), Vector(-12.2, 5.5, 0)),  # 14
    Part.ArcOfCircle(Part.Circle(Vector(-14, 5.5, 0), Vector(0, 0, 1), 1.8), math.radians(-115), math.radians(0)),  # 15
    Part.LineSegment(Vector(-14.8, 3.9, 0), Vector(-20, 6.3, 0)),  # 16
    Part.ArcOfCircle(Part.Circle(Vector(-19.4, 7.5, 0), Vector(0, 0, 1), 1.3), math.radians(90), math.radians(245)),  # 17
    Part.LineSegment(Vector(-13.5, 8.6, 0), Vector(-19.4, 8.6, 0)),  # 18
    Part.ArcOfCircle(Part.Circle(Vector(-19.4, 7.5, 0), Vector(0, 0, 1), 1.1), math.radians(90), math.radians(245)),  # 19
    Part.LineSegment(Vector(-19.9, 6.5, 0), Vector(-14.7, 4.1, 0)),  # 20
    Part.ArcOfCircle(Part.Circle(Vector(-14, 5.5, 0), Vector(0, 0, 1), 1.6), math.radians(-115), math.radians(0)),  # 21
    Part.LineSegment(Vector(-12.4, 5.5, 0), Vector(-12.4, 7.5, 0)),  # 22
    Part.ArcOfCircle(Part.Circle(Vector(-13.5, 7.5, 0), Vector(0, 0, 1), 1.1), math.radians(0), math.radians(90)),  # 23
], False)
sketch17.addConstraint([
    Sketcher.Constraint("Tangent", 0, 2, 1, 2),
    Sketcher.Constraint("Tangent", 1, 1, 2, 1),
    Sketcher.Constraint("Tangent", 2, 2, 3, 2),
    Sketcher.Constraint("Tangent", 3, 1, 4, 1),
    Sketcher.Constraint("Tangent", 4, 2, 5, 2),
    Sketcher.Constraint("Tangent", 5, 1, 0, 1),
    Sketcher.Constraint("Tangent", 6, 2, 7, 1),
    Sketcher.Constraint("Tangent", 7, 2, 8, 1),
    Sketcher.Constraint("Tangent", 8, 2, 9, 1),
    Sketcher.Constraint("Tangent", 9, 2, 10, 1),
    Sketcher.Constraint("Tangent", 10, 2, 11, 1),
    Sketcher.Constraint("Tangent", 11, 2, 6, 1),
    Sketcher.Constraint("Tangent", 12, 2, 13, 2),
    Sketcher.Constraint("Tangent", 13, 1, 14, 1),
    Sketcher.Constraint("Tangent", 14, 2, 15, 2),
    Sketcher.Constraint("Tangent", 15, 1, 16, 1),
    Sketcher.Constraint("Tangent", 16, 2, 17, 2),
    Sketcher.Constraint("Tangent", 17, 1, 12, 1),
    Sketcher.Constraint("Tangent", 18, 2, 19, 1),
    Sketcher.Constraint("Tangent", 19, 2, 20, 1),
    Sketcher.Constraint("Tangent", 20, 2, 21, 1),
    Sketcher.Constraint("Tangent", 21, 2, 22, 1),
    Sketcher.Constraint("Tangent", 22, 2, 23, 1),
    Sketcher.Constraint("Tangent", 23, 2, 18, 1),
    Sketcher.Constraint("Horizontal", 0),
    Sketcher.Constraint("Vertical", 4),
    Sketcher.Constraint("Horizontal", 6),
    Sketcher.Constraint("Vertical", 8),
    Sketcher.Constraint("Horizontal", 12),
    Sketcher.Constraint("Vertical", 14),
    Sketcher.Constraint("Horizontal", 18),
    Sketcher.Constraint("Vertical", 22),
    Sketcher.Constraint("Coincident", 7, 3, 5, 3),
    Sketcher.Constraint("Coincident", 9, 3, 3, 3),
    Sketcher.Constraint("Coincident", 11, 3, 1, 3),
    Sketcher.Constraint("Coincident", 19, 3, 17, 3),
    Sketcher.Constraint("Coincident", 21, 3, 15, 3),
    Sketcher.Constraint("Coincident", 23, 3, 13, 3),
    Sketcher.Constraint("Equal", 1, 5),
    Sketcher.Constraint("Equal", 5, 13),
    Sketcher.Constraint("Equal", 3, 15),
    Sketcher.Constraint("Equal", 13, 17),
    Sketcher.Constraint("Equal", 11, 19),
    Sketcher.Constraint("Symmetric", 5, 3, 13, 3, -2),
    Sketcher.Constraint("Symmetric", 2, 2, 15, 1, -2),
    Sketcher.Constraint("Radius", 1, 1.3),
    Sketcher.Constraint("Radius", 3, 1.8),
    Sketcher.Constraint("Radius", 7, 1.1),
    Sketcher.Constraint("DistanceX", -1, 1, 3, 3, 14.0),
    Sketcher.Constraint("DistanceY", -1, 1, 1, 3, 7.5),
    Sketcher.Constraint("Distance", 2, 5.775801),
    Sketcher.Constraint("DistanceY", 4, 1, 4, 2, 1.989411),
])
pad10 = body.newObject("PartDesign::Pad", "Pad009")
pad10.Profile = sketch17
pad10.Length = 4

# Sketch on XY plane
sketch18 = body.newObject("Sketcher::SketchObject", "Sketch017")
sketch18.AttachmentSupport = (doc.getObject("XY_Plane"), [""])
sketch18.MapMode = "FlatFace"
sketch18.addGeometry([
    Part.LineSegment(Vector(21.5, -6, 0), Vector(21.5, -10, 0)),  # 0
    Part.ArcOfCircle(Part.Circle(Vector(16.5, -10, 0), Vector(0, 0, 1), 5), math.radians(-90), math.radians(0)),  # 1
    Part.LineSegment(Vector(16.5, -15, 0), Vector(-16.5, -15, 0)),  # 2
    Part.ArcOfCircle(Part.Circle(Vector(-16.5, -10, 0), Vector(0, 0, 1), 5), math.radians(180), math.radians(270)),  # 3
    Part.LineSegment(Vector(-21.5, -10, 0), Vector(-21.5, -6, 0)),  # 4
    Part.LineSegment(Vector(-21.5, -6, 0), Vector(21.5, -6, 0)),  # 5
], False)
sketch18.addConstraint([
    Sketcher.Constraint("Tangent", 0, 2, 1, 2),
    Sketcher.Constraint("Tangent", 1, 1, 2, 1),
    Sketcher.Constraint("Tangent", 2, 2, 3, 2),
    Sketcher.Constraint("Tangent", 3, 1, 4, 1),
    Sketcher.Constraint("Coincident", 4, 2, 5, 1),
    Sketcher.Constraint("Coincident", 5, 2, 0, 1),
    Sketcher.Constraint("Vertical", 0),
    Sketcher.Constraint("Horizontal", 2),
    Sketcher.Constraint("Vertical", 4),
    Sketcher.Constraint("Horizontal", 5),
    Sketcher.Constraint("Equal", 1, 3),
    Sketcher.Constraint("Radius", 1, 5.0),
    Sketcher.Constraint("DistanceX", 2, 2, 2, 1, 33.0),
    Sketcher.Constraint("DistanceY", 0, 2, 0, 1, 4.0),
    Sketcher.Constraint("DistanceY", 1, 3, -1, 1, 10.0),
    Sketcher.Constraint("DistanceX", -1, 1, 1, 3, 16.5),
])
pocket8 = body.newObject("PartDesign::Pocket", "Pocket007")
pocket8.Profile = sketch18
pocket8.Length = 1
pocket8.Reversed = True

# Sketch on XY plane
sketch19 = body.newObject("Sketcher::SketchObject", "Sketch018")
sketch19.AttachmentSupport = (doc.getObject("XY_Plane"), [""])
sketch19.MapMode = "FlatFace"
sketch19.AttachmentOffset = App.Placement(Vector(0, 0, -1), App.Rotation())
sketch19.addGeometry([
    Part.LineSegment(Vector(-16.5, 14, 0), Vector(16.5, 14, 0)),  # 0
    Part.ArcOfCircle(Part.Circle(Vector(16.5, 9, 0), Vector(0, 0, 1), 5), math.radians(0), math.radians(90)),  # 1
    Part.LineSegment(Vector(21.5, 9, 0), Vector(21.5, -6, 0)),  # 2
    Part.LineSegment(Vector(21.5, -6, 0), Vector(-21.5, -6, 0)),  # 3
    Part.LineSegment(Vector(-21.5, -6, 0), Vector(-21.5, 9, 0)),  # 4
    Part.ArcOfCircle(Part.Circle(Vector(-16.5, 9, 0), Vector(0, 0, 1), 5), math.radians(90), math.radians(180)),  # 5
    Part.Circle(Vector(7.5, 2.6, 0), Vector(0, 0, 1), 0.9),  # 6
    Part.Circle(Vector(-7.5, 2.6, 0), Vector(0, 0, 1), 0.9),  # 7
], False)
sketch19.addConstraint([
    Sketcher.Constraint("Tangent", 0, 2, 1, 2),
    Sketcher.Constraint("Tangent", 1, 1, 2, 1),
    Sketcher.Constraint("Coincident", 2, 2, 3, 1),
    Sketcher.Constraint("Coincident", 3, 2, 4, 1),
    Sketcher.Constraint("Tangent", 4, 2, 5, 2),
    Sketcher.Constraint("Tangent", 5, 1, 0, 1),
    Sketcher.Constraint("Horizontal", 0),
    Sketcher.Constraint("Vertical", 2),
    Sketcher.Constraint("Horizontal", 3),
    Sketcher.Constraint("Vertical", 4),
    Sketcher.Constraint("Equal", 1, 5),
    Sketcher.Constraint("Equal", 6, 7),
    Sketcher.Constraint("Symmetric", 6, 3, 7, 3, -2),
    Sketcher.Constraint("Radius", 1, 5.0),
    Sketcher.Constraint("Diameter", 6, 1.85),
    Sketcher.Constraint("DistanceX", 0, 1, 0, 2, 33.0),
    Sketcher.Constraint("DistanceY", 2, 2, 2, 1, 15.0),
    Sketcher.Constraint("DistanceY", -1, 1, 1, 3, 9.0),
    Sketcher.Constraint("DistanceX", 6, 3, 1, 3, 9.0),
    Sketcher.Constraint("DistanceX", 5, 3, 7, 3, 9.0),
    Sketcher.Constraint("DistanceY", -1, 1, 6, 3, 2.6),
])
pad11 = body.newObject("PartDesign::Pad", "Pad010")
pad11.Profile = sketch19
pad11.Length = 1
pad11.Reversed = True

# Sketch on XY plane
sketch20 = body.newObject("Sketcher::SketchObject", "Sketch019")
sketch20.AttachmentSupport = (doc.getObject("XY_Plane"), [""])
sketch20.MapMode = "FlatFace"
sketch20.AttachmentOffset = App.Placement(Vector(0, 0, -6), App.Rotation())
sketch20.addGeometry([
    Part.LineSegment(Vector(13.5, 8.8, 0), Vector(19.4, 8.8, 0)),  # 0
    Part.ArcOfCircle(Part.Circle(Vector(19.4, 7.5, 0), Vector(0, 0, 1), 1.3), math.radians(-65), math.radians(90)),  # 1
    Part.LineSegment(Vector(20, 6.3, 0), Vector(14.8, 3.9, 0)),  # 2
    Part.ArcOfCircle(Part.Circle(Vector(14, 5.5, 0), Vector(0, 0, 1), 1.8), math.radians(-180), math.radians(-65)),  # 3
    Part.LineSegment(Vector(12.2, 5.5, 0), Vector(12.2, 7.5, 0)),  # 4
    Part.ArcOfCircle(Part.Circle(Vector(13.5, 7.5, 0), Vector(0, 0, 1), 1.3), math.radians(90), math.radians(180)),  # 5
    Part.LineSegment(Vector(-19.4, 8.8, 0), Vector(-13.5, 8.8, 0)),  # 6
    Part.ArcOfCircle(Part.Circle(Vector(-13.5, 7.5, 0), Vector(0, 0, 1), 1.3), math.radians(0), math.radians(90)),  # 7
    Part.LineSegment(Vector(-12.2, 7.5, 0), Vector(-12.2, 5.5, 0)),  # 8
    Part.ArcOfCircle(Part.Circle(Vector(-14, 5.5, 0), Vector(0, 0, 1), 1.8), math.radians(-115), math.radians(0)),  # 9
    Part.LineSegment(Vector(-14.8, 3.9, 0), Vector(-20, 6.3, 0)),  # 10
    Part.ArcOfCircle(Part.Circle(Vector(-19.4, 7.5, 0), Vector(0, 0, 1), 1.3), math.radians(90), math.radians(245)),  # 11
], False)
sketch20.addConstraint([
    Sketcher.Constraint("Tangent", 0, 2, 1, 2),
    Sketcher.Constraint("Tangent", 1, 1, 2, 1),
    Sketcher.Constraint("Tangent", 2, 2, 3, 2),
    Sketcher.Constraint("Tangent", 3, 1, 4, 1),
    Sketcher.Constraint("Tangent", 4, 2, 5, 2),
    Sketcher.Constraint("Tangent", 5, 1, 0, 1),
    Sketcher.Constraint("Tangent", 6, 2, 7, 2),
    Sketcher.Constraint("Tangent", 7, 1, 8, 1),
    Sketcher.Constraint("Tangent", 8, 2, 9, 2),
    Sketcher.Constraint("Tangent", 9, 1, 10, 1),
    Sketcher.Constraint("Tangent", 10, 2, 11, 2),
    Sketcher.Constraint("Tangent", 11, 1, 6, 1),
    Sketcher.Constraint("Horizontal", 0),
    Sketcher.Constraint("Vertical", 4),
    Sketcher.Constraint("Horizontal", 6),
    Sketcher.Constraint("Vertical", 8),
    Sketcher.Constraint("Equal", 1, 5),
    Sketcher.Constraint("Equal", 5, 7),
    Sketcher.Constraint("Equal", 3, 9),
    Sketcher.Constraint("Equal", 7, 11),
    Sketcher.Constraint("Symmetric", 5, 3, 7, 3, -2),
    Sketcher.Constraint("Symmetric", 2, 2, 9, 1, -2),
    Sketcher.Constraint("Radius", 1, 1.3),
    Sketcher.Constraint("Radius", 3, 1.8),
    Sketcher.Constraint("DistanceX", -1, 1, 3, 3, 14.0),
    Sketcher.Constraint("DistanceY", -1, 1, 1, 3, 7.5),
    Sketcher.Constraint("Distance", 2, 5.775801),
    Sketcher.Constraint("DistanceY", 4, 1, 4, 2, 1.989411),
])
pad12 = body.newObject("PartDesign::Pad", "Pad011")
pad12.Profile = sketch20
pad12.Length = 1

doc.recompute()
